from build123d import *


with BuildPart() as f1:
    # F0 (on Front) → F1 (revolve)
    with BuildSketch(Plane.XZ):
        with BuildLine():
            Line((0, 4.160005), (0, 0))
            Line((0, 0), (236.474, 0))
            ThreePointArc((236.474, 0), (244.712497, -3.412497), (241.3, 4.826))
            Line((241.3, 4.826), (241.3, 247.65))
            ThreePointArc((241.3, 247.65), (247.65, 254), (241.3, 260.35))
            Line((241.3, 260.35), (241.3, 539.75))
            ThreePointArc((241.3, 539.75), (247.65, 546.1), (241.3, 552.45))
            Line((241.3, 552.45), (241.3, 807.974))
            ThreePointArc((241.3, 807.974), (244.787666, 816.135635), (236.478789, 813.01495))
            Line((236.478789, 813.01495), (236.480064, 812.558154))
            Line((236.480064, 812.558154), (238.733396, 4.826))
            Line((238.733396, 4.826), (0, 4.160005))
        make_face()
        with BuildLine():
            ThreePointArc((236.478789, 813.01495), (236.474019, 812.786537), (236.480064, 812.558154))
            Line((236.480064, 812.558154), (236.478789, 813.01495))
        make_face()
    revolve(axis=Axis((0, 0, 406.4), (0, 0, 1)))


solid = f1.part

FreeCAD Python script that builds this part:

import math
import FreeCAD as App
import Part
import Sketcher
from FreeCAD import Vector
Q = App.Units.Quantity

doc = App.newDocument("Part")
body = doc.addObject("PartDesign::Body", "Body")

sketch1 = body.newObject("Sketcher::SketchObject", "Sketch")
sketch1.AttachmentSupport = (doc.getObject("XZ_Plane"), [""])
sketch1.MapMode = "FlatFace"
sketch1.addGeometry([
    Part.LineSegment(Vector(0, 4.160005, 0), Vector(0, 0, 0)),
    Part.LineSegment(Vector(0, 0, 0), Vector(236.474, 0, 0)),
    Part.ArcOfCircle(Part.Circle(Vector(241.3, 0, 0), Vector(0, 0, 1), 4.826), math.radians(-179.999998), math.radians(89.999998)),
    Part.LineSegment(Vector(241.3, 4.826, 0), Vector(241.3, 247.65, 0)),
    Part.ArcOfCircle(Part.Circle(Vector(241.3, 254, 0), Vector(0, 0, 1), 6.35), math.radians(-90), math.radians(90)),
    Part.LineSegment(Vector(241.3, 260.35, 0), Vector(241.3, 539.75, 0)),
    Part.ArcOfCircle(Part.Circle(Vector(241.3, 546.1, 0), Vector(0, 0, 1), 6.35), math.radians(-90), math.radians(90)),
    Part.LineSegment(Vector(241.3, 552.45, 0), Vector(241.3, 807.974, 0)),
    Part.ArcOfCircle(Part.Circle(Vector(241.3, 812.8, 0), Vector(0, 0, 1), 4.826), math.radians(-89.999997), math.radians(177.447203)),
    Part.ArcOfCircle(Part.Circle(Vector(241.300176, 812.800008, 0), Vector(0, 0, 1), 4.826176), math.radians(177.447385), math.radians(182.87246)),
    Part.LineSegment(Vector(236.480064, 812.558154, 0), Vector(238.733396, 4.826, 0)),
    Part.LineSegment(Vector(238.733396, 4.826, 0), Vector(0, 4.160005, 0)),
], False)
sketch1.addConstraint([
    Sketcher.Constraint("Coincident", 0, 2, 1, 1),
    Sketcher.Constraint("Coincident", 1, 2, 2, 1),
    Sketcher.Constraint("Coincident", 2, 2, 3, 1),
    Sketcher.Constraint("Coincident", 3, 2, 4, 1),
    Sketcher.Constraint("Coincident", 4, 2, 5, 1),
    Sketcher.Constraint("Coincident", 5, 2, 6, 1),
    Sketcher.Constraint("Coincident", 6, 2, 7, 1),
    Sketcher.Constraint("Coincident", 7, 2, 8, 1),
    Sketcher.Constraint("Coincident", 8, 2, 9, 1),
    Sketcher.Constraint("Coincident", 9, 2, 10, 1),
    Sketcher.Constraint("Coincident", 10, 2, 11, 1),
    Sketcher.Constraint("Coincident", 11, 2, 0, 1),
    Sketcher.Constraint("Vertical", 0),
    Sketcher.Constraint("Horizontal", 1),
    Sketcher.Constraint("Vertical", 3),
    Sketcher.Constraint("Vertical", 5),
    Sketcher.Constraint("Vertical", 7),
    Sketcher.Constraint("Coincident", 0, 2, -1, 1),
    Sketcher.Constraint("Equal", 4, 6),
    Sketcher.Constraint("Equal", 2, 8),
    Sketcher.Constraint("PointOnObject", 2, 3, -1),
    Sketcher.Constraint("Perpendicular", 10, 11),
    Sketcher.Constraint("Horizontal", 2, 2, 10, 2),
    Sketcher.Constraint("Vertical", 2, 3, 4, 3),
    Sketcher.Constraint("Vertical", 4, 3, 6, 3),
    Sketcher.Constraint("Vertical", 6, 3, 8, 3),
    Sketcher.Constraint("Vertical", 8, 3, 2, 2),
    Sketcher.Constraint("Vertical", 3, 2, 4, 2),
    Sketcher.Constraint("Vertical", 5, 2, 6, 2),
    Sketcher.Constraint("DistanceY", 5, 1, 5, 2, Q("11 in")),
    Sketcher.Constraint("Radius", 2, Q("0.19 in")),
    Sketcher.Constraint("Radius", 4, Q("0.25 in")),
    Sketcher.Constraint("DistanceY", -1, 1, 4, 3, Q("10 in")),
    Sketcher.Constraint("DistanceY", -1, 1, 8, 3, Q("32 in")),
    Sketcher.Constraint("DistanceX", 1, 1, 1, 2, Q("9.31 in")),
    Sketcher.Constraint("Radius", 9, Q("4.826176 mm")),
    Sketcher.Constraint("DistanceY", 0, 2, 0, 1, Q("4.160005 mm")),
    Sketcher.Constraint("DistanceX", -1, 1, 8, 2, Q("236.478789 mm")),
    Sketcher.Constraint("Distance", 10, Q("807.735297 mm")),
    Sketcher.Constraint("Distance", 11, Q("238.734325 mm")),
])
revolution = body.newObject("PartDesign::Revolution", "Revolution")
revolution.Profile = sketch1
revolution.ReferenceAxis = (sketch1, ["V_Axis"])
revolution.Angle = 360

doc.recompute()
